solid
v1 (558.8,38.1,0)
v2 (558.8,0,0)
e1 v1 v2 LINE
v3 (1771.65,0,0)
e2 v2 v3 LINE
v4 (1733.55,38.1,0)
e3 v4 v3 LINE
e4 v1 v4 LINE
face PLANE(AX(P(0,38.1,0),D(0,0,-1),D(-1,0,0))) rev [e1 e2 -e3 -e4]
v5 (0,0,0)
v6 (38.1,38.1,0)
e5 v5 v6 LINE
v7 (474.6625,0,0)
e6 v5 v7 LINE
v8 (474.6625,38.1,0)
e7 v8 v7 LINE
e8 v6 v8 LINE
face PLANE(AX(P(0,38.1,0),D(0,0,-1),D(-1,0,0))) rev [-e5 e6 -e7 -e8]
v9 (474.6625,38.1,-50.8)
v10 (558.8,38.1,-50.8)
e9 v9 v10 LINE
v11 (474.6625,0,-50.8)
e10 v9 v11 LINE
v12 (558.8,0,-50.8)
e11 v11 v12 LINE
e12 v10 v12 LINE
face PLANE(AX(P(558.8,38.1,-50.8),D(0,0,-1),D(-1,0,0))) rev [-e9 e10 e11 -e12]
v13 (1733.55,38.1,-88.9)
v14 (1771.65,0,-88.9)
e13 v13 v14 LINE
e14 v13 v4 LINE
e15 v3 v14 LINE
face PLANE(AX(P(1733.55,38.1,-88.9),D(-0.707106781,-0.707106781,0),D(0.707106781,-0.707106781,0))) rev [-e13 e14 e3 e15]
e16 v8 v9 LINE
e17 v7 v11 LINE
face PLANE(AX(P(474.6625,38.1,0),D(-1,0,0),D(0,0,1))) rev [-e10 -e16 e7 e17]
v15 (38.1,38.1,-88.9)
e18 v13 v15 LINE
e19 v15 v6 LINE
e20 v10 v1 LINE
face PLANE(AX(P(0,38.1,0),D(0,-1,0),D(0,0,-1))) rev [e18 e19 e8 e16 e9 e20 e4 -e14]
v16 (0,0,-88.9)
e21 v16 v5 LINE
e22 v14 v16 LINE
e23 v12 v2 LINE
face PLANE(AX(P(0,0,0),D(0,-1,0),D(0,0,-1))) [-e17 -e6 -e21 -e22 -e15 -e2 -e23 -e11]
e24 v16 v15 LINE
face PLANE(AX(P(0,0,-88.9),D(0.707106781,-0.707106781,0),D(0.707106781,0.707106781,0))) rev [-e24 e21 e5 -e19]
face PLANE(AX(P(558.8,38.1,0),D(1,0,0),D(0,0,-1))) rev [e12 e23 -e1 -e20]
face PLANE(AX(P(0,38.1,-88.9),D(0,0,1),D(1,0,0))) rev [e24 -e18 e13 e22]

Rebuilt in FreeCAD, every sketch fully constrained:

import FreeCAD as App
import Part
import Sketcher
Q = App.Units.Quantity

doc = App.newDocument("Part")
body = doc.addObject("PartDesign::Body", "Body")

# Sketch on XZ plane
sketch1 = body.newObject("Sketcher::SketchObject", "Sketch")
sketch1.AttachmentSupport = (doc.getObject("XZ_Plane"), [""])
sketch1.MapMode = "FlatFace"
sketch1.addGeometry(Part.LineSegment(App.Vector(0, -89, 0), App.Vector(0, 0, 0)), False)
sketch1.addGeometry(Part.LineSegment(App.Vector(0, 0, 0), App.Vector(1772, 0, 0)), False)
sketch1.addGeometry(Part.LineSegment(App.Vector(1772, 0, 0), App.Vector(1772, -89, 0)), False)
sketch1.addGeometry(Part.LineSegment(App.Vector(1772, -89, 0), App.Vector(0, -89, 0)), False)
sketch1.addConstraint(Sketcher.Constraint("Coincident", 0, 2, 1, 1))
sketch1.addConstraint(Sketcher.Constraint("Coincident", 1, 2, 2, 1))
sketch1.addConstraint(Sketcher.Constraint("Coincident", 2, 2, 3, 1))
sketch1.addConstraint(Sketcher.Constraint("Coincident", 3, 2, 0, 1))
sketch1.addConstraint(Sketcher.Constraint("Vertical", 0))
sketch1.addConstraint(Sketcher.Constraint("Horizontal", 1))
sketch1.addConstraint(Sketcher.Constraint("Vertical", 2))
sketch1.addConstraint(Sketcher.Constraint("Horizontal", 3))
sketch1.addConstraint(Sketcher.Constraint("Coincident", 0, 2, -1, 1))
sketch1.addConstraint(Sketcher.Constraint("DistanceY", 0, 1, 0, 2, Q("3.5 in")))
sketch1.addConstraint(Sketcher.Constraint("DistanceX", 1, 1, 1, 2, Q("69.75 in")))
pad1 = body.newObject("PartDesign::Pad", "Pad")
pad1.Profile = sketch1
pad1.Length = Q("1.5 in")
pad1.Reversed = True

# Sketch on XY plane
sketch2 = body.newObject("Sketcher::SketchObject", "Sketch001")
sketch2.AttachmentSupport = (doc.getObject("XY_Plane"), [""])
sketch2.MapMode = "FlatFace"
sketch2.addGeometry(Part.LineSegment(App.Vector(0, 0, 0), App.Vector(38, 38, 0)), False)
sketch2.addGeometry(Part.LineSegment(App.Vector(38, 38, 0), App.Vector(0, 38, 0)), False)
sketch2.addGeometry(Part.LineSegment(App.Vector(0, 38, 0), App.Vector(0, 0, 0)), False)
sketch2.addGeometry(Part.LineSegment(App.Vector(1772, 0, 0), App.Vector(1772, 38, 0)), False)
sketch2.addGeometry(Part.LineSegment(App.Vector(1772, 38, 0), App.Vector(1734, 38, 0)), False)
sketch2.addGeometry(Part.LineSegment(App.Vector(1734, 38, 0), App.Vector(1772, 0, 0)), False)
sketch2.addConstraint(Sketcher.Constraint("Coincident", 0, 2, 1, 1))
sketch2.addConstraint(Sketcher.Constraint("Coincident", 1, 2, 2, 1))
sketch2.addConstraint(Sketcher.Constraint("Coincident", 2, 2, 0, 1))
sketch2.addConstraint(Sketcher.Constraint("Coincident", 3, 2, 4, 1))
sketch2.addConstraint(Sketcher.Constraint("Coincident", 4, 2, 5, 1))
sketch2.addConstraint(Sketcher.Constraint("Coincident", 5, 2, 3, 1))
sketch2.addConstraint(Sketcher.Constraint("Horizontal", 1))
sketch2.addConstraint(Sketcher.Constraint("Vertical", 2))
sketch2.addConstraint(Sketcher.Constraint("Vertical", 3))
sketch2.addConstraint(Sketcher.Constraint("Horizontal", 4))
sketch2.addConstraint(Sketcher.Constraint("Coincident", 2, 2, -1, 1))
sketch2.addConstraint(Sketcher.Constraint("PointOnObject", 5, 2, -1))
sketch2.addConstraint(Sketcher.Constraint("Perpendicular", 0, 5))
sketch2.addConstraint(Sketcher.Constraint("Horizontal", 1, 2, 3, 2))
sketch2.addConstraint(Sketcher.Constraint("Equal", 1, 4))
sketch2.addConstraint(Sketcher.Constraint("DistanceX", 1, 2, 1, 1, Q("1.5 in")))
sketch2.addConstraint(Sketcher.Constraint("DistanceX", -1, 1, 3, 2, Q("69.75 in")))
pocket1 = body.newObject("PartDesign::Pocket", "Pocket")
pocket1.Profile = sketch2
pocket1.Type = "ThroughAll"

# Sketch on XZ plane
sketch3 = body.newObject("Sketcher::SketchObject", "Sketch002")
sketch3.AttachmentSupport = (doc.getObject("XZ_Plane"), [""])
sketch3.MapMode = "FlatFace"
sketch3.addGeometry(Part.LineSegment(App.Vector(475, 0, 0), App.Vector(475, -51, 0)), False)
sketch3.addGeometry(Part.LineSegment(App.Vector(475, -51, 0), App.Vector(559, -51, 0)), False)
sketch3.addGeometry(Part.LineSegment(App.Vector(559, -51, 0), App.Vector(559, 0, 0)), False)
sketch3.addGeometry(Part.LineSegment(App.Vector(559, 0, 0), App.Vector(475, 0, 0)), False)
sketch3.addConstraint(Sketcher.Constraint("Coincident", 0, 2, 1, 1))
sketch3.addConstraint(Sketcher.Constraint("Coincident", 1, 2, 2, 1))
sketch3.addConstraint(Sketcher.Constraint("Coincident", 2, 2, 3, 1))
sketch3.addConstraint(Sketcher.Constraint("Coincident", 3, 2, 0, 1))
sketch3.addConstraint(Sketcher.Constraint("Vertical", 0))
sketch3.addConstraint(Sketcher.Constraint("Horizontal", 1))
sketch3.addConstraint(Sketcher.Constraint("Vertical", 2))
sketch3.addConstraint(Sketcher.Constraint("Horizontal", 3))
sketch3.addConstraint(Sketcher.Constraint("PointOnObject", 2, 2, -1))
sketch3.addConstraint(Sketcher.Constraint("DistanceY", 0, 2, 0, 1, Q("2 in")))
sketch3.addConstraint(Sketcher.Constraint("DistanceX", -1, 1, 1, 2, Q("22 in")))
sketch3.addConstraint(Sketcher.Constraint("DistanceX", 1, 1, 1, 2, Q("3.3125 in")))
pocket2 = body.newObject("PartDesign::Pocket", "Pocket001")
pocket2.Profile = sketch3
pocket2.Type = "ThroughAll"

doc.recompute()
